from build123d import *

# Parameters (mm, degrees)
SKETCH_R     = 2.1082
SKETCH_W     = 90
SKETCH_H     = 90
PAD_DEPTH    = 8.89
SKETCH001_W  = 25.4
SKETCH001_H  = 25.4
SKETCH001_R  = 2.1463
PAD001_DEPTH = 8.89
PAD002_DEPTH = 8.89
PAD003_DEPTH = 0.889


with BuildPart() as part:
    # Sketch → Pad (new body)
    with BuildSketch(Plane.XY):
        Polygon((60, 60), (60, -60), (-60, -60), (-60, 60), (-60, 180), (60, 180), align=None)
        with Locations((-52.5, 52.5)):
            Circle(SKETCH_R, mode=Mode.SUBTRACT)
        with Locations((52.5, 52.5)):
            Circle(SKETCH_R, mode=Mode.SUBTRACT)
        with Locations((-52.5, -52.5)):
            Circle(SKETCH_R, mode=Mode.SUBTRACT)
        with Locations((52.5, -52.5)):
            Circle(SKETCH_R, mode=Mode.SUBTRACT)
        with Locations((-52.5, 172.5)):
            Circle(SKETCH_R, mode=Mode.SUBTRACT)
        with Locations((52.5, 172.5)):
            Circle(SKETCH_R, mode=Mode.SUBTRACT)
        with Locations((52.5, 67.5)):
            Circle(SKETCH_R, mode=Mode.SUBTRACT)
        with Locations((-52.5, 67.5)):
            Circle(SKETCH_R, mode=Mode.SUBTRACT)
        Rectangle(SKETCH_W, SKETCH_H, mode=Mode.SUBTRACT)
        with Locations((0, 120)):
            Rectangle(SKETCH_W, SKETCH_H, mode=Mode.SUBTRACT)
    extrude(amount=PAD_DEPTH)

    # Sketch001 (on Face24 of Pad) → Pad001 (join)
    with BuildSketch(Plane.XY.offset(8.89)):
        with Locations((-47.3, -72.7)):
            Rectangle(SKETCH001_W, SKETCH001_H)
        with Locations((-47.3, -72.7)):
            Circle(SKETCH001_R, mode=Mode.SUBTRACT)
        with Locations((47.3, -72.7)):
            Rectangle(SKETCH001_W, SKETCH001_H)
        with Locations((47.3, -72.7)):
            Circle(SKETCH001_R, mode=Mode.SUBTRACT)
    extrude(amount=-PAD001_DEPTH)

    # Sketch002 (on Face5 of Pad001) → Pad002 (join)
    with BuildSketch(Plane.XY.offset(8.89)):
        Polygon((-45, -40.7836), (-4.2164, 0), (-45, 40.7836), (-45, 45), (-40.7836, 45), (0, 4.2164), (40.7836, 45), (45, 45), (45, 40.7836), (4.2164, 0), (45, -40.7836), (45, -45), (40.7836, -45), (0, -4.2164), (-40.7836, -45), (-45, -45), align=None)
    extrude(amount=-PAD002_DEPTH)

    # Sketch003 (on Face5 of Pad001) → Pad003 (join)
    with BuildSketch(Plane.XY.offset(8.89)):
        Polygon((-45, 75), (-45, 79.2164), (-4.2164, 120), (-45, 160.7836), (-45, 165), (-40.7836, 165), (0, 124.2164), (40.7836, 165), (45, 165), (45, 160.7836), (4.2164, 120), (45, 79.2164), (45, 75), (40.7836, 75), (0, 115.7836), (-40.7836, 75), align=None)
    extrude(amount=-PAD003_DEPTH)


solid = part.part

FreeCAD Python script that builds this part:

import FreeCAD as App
import Part
import Sketcher

V = App.Vector
Q = App.Units.Quantity

doc = App.newDocument("Part")
params = doc.addObject("Spreadsheet::Sheet", "Params")
for row, (alias, value) in enumerate([
    ("sketch1_diameter", "0.166 in"),
    ("pad1_length", "0.35 in"),
    ("sketch2_width", "1 in"),
    ("sketch2_diameter", "0.169 in"),
    ("pad2_length", "0.35 in"),
    ("sketch3_width", "0.166 in"),
    ("pad3_length", "0.35 in"),
    ("sketch4_width", "0.166 in"),
    ("pad4_length", "0.035 in"),
], start=1):
    params.set(f"A{row}", alias)
    params.set(f"B{row}", "=" + value)
    params.setAlias(f"B{row}", alias)

body = doc.addObject("PartDesign::Body", "Body")

sketch1 = body.newObject("Sketcher::SketchObject", "Sketch")
sketch1.AttachmentSupport = (doc.getObject("XY_Plane"), [""])
sketch1.MapMode = "FlatFace"
sketch1.addGeometry([
    Part.LineSegment(V(60, -60, 0), V(60, 180, 0)),
    Part.LineSegment(V(60, 180, 0), V(-60, 180, 0)),
    Part.LineSegment(V(-60, 180, 0), V(-60, -60, 0)),
    Part.LineSegment(V(-60, -60, 0), V(60, -60, 0)),
    Part.Circle(V(52.5, -52.5, 0), V(0, 0, 1), 2.1),
    Part.Circle(V(52.5, 52.5, 0), V(0, 0, 1), 2.1),
    Part.LineSegment(V(-45, -45, 0), V(-45, 45, 0)),
    Part.LineSegment(V(-45, 45, 0), V(45, 45, 0)),
    Part.LineSegment(V(45, 45, 0), V(45, -45, 0)),
    Part.LineSegment(V(45, -45, 0), V(-45, -45, 0)),
    Part.Circle(V(-52.5, -52.5, 0), V(0, 0, 1), 2.1),
    Part.Circle(V(-52.5, 52.5, 0), V(0, 0, 1), 2.1),
    Part.Circle(V(52.5, 67.5, 0), V(0, 0, 1), 2.1),
    Part.Circle(V(52.5, 172.5, 0), V(0, 0, 1), 2.1),
    Part.Circle(V(-52.5, 67.5, 0), V(0, 0, 1), 2.1),
    Part.LineSegment(V(-45, 75, 0), V(-45, 165, 0)),
    Part.LineSegment(V(-45, 165, 0), V(45, 165, 0)),
    Part.LineSegment(V(45, 165, 0), V(45, 75, 0)),
    Part.LineSegment(V(45, 75, 0), V(-45, 75, 0)),
    Part.Circle(V(-52.5, 172.5, 0), V(0, 0, 1), 2.1),
], False)
sketch1.addConstraint([
    Sketcher.Constraint("Coincident", 0, 2, 1, 1),
    Sketcher.Constraint("Coincident", 1, 2, 2, 1),
    Sketcher.Constraint("Coincident", 2, 2, 3, 1),
    Sketcher.Constraint("Coincident", 3, 2, 0, 1),
    Sketcher.Constraint("Coincident", 6, 2, 7, 1),
    Sketcher.Constraint("Coincident", 7, 2, 8, 1),
    Sketcher.Constraint("Coincident", 8, 2, 9, 1),
    Sketcher.Constraint("Coincident", 9, 2, 6, 1),
    Sketcher.Constraint("Coincident", 15, 2, 16, 1),
    Sketcher.Constraint("Coincident", 16, 2, 17, 1),
    Sketcher.Constraint("Coincident", 17, 2, 18, 1),
    Sketcher.Constraint("Coincident", 18, 2, 15, 1),
    Sketcher.Constraint("Vertical", 0),
    Sketcher.Constraint("Horizontal", 1),
    Sketcher.Constraint("Vertical", 2),
    Sketcher.Constraint("Horizontal", 3),
    Sketcher.Constraint("Vertical", 6),
    Sketcher.Constraint("Horizontal", 7),
    Sketcher.Constraint("Vertical", 8),
    Sketcher.Constraint("Horizontal", 9),
    Sketcher.Constraint("Vertical", 15),
    Sketcher.Constraint("Horizontal", 16),
    Sketcher.Constraint("Vertical", 17),
    Sketcher.Constraint("Horizontal", 18),
    Sketcher.Constraint("Equal", 4, 5),
    Sketcher.Constraint("Equal", 5, 10),
    Sketcher.Constraint("Equal", 10, 11),
    Sketcher.Constraint("Equal", 11, 12),
    Sketcher.Constraint("Equal", 12, 13),
    Sketcher.Constraint("Equal", 13, 14),
    Sketcher.Constraint("Equal", 14, 19),
    Sketcher.Constraint("Symmetric", 5, 3, 10, 3, -1, 1),
    Sketcher.Constraint("Symmetric", 4, 3, 11, 3, -1, 1),
    Sketcher.Constraint("Symmetric", 6, 2, 8, 2, -1, 1),
    Sketcher.Constraint("Symmetric", 4, 3, 10, 3, -2),
    Sketcher.Constraint("Symmetric", 12, 3, 14, 3, -2),
    Sketcher.Constraint("Symmetric", 13, 3, 19, 3, -2),
    Sketcher.Constraint("Vertical", 5, 3, 12, 3),
    Sketcher.Constraint("Vertical", 12, 3, 13, 3),
    Sketcher.Constraint("Vertical", 9, 2, 15, 2),
    Sketcher.Constraint("Vertical", 8, 2, 16, 2),
    Sketcher.Constraint("Equal", 18, 6),
    Sketcher.Constraint("Equal", 8, 15),
    Sketcher.Constraint("Diameter", 4, Q("0.166 in")),
    Sketcher.Constraint("DistanceX", 1, 2, 1, 1, Q("120 mm")),
    Sketcher.Constraint("DistanceX", 7, 1, 7, 2, Q("90 mm")),
    Sketcher.Constraint("DistanceY", 0, 1, 0, 2, Q("240 mm")),
    Sketcher.Constraint("DistanceX", -1, 1, 4, 3, Q("52.5 mm")),
    Sketcher.Constraint("DistanceY", 4, 3, -1, 1, Q("52.5 mm")),
    Sketcher.Constraint("DistanceY", -1, 1, 12, 3, Q("67.5 mm")),
    Sketcher.Constraint("DistanceY", -1, 1, 13, 3, Q("172.5 mm")),
    Sketcher.Constraint("DistanceX", -1, 1, 0, 2, Q("60 mm")),
    Sketcher.Constraint("DistanceY", -1, 1, 0, 2, Q("180 mm")),
    Sketcher.Constraint("DistanceY", -1, 1, 15, 2, Q("165 mm")),
])
sketch1.setExpression("Constraints[43]", "Params.sketch1_diameter")
pad1 = body.newObject("PartDesign::Pad", "Pad")
pad1.Profile = sketch1
pad1.setExpression("Length", "Params.pad1_length")

sketch2 = body.newObject("Sketcher::SketchObject", "Sketch001")
sketch2.AttachmentSupport = (doc.getObject("XY_Plane"), [""])
sketch2.MapMode = "FlatFace"
sketch2.AttachmentOffset = App.Placement(V(0, 0, 0.35 * 25.4), App.Rotation())
sketch2.addGeometry([
    Part.LineSegment(V(-60, -60, 0), V(-60, -85.4, 0)),
    Part.LineSegment(V(-60, -85.4, 0), V(-34.6, -85.4, 0)),
    Part.LineSegment(V(-34.6, -85.4, 0), V(-34.6, -60, 0)),
    Part.LineSegment(V(-34.6, -60, 0), V(-60, -60, 0)),
    Part.Circle(V(-47.3, -72.7, 0), V(0, 0, 1), 2.1),
    Part.LineSegment(V(34.6, -60, 0), V(34.6, -85.4, 0)),
    Part.LineSegment(V(34.6, -85.4, 0), V(60, -85.4, 0)),
    Part.LineSegment(V(60, -85.4, 0), V(60, -60, 0)),
    Part.LineSegment(V(60, -60, 0), V(34.6, -60, 0)),
    Part.Circle(V(47.3, -72.7, 0), V(0, 0, 1), 2.1),
], False)
sketch2.addConstraint([
    Sketcher.Constraint("Coincident", 0, 2, 1, 1),
    Sketcher.Constraint("Coincident", 1, 2, 2, 1),
    Sketcher.Constraint("Coincident", 2, 2, 3, 1),
    Sketcher.Constraint("Coincident", 3, 2, 0, 1),
    Sketcher.Constraint("Coincident", 5, 2, 6, 1),
    Sketcher.Constraint("Coincident", 6, 2, 7, 1),
    Sketcher.Constraint("Coincident", 7, 2, 8, 1),
    Sketcher.Constraint("Coincident", 8, 2, 5, 1),
    Sketcher.Constraint("Vertical", 0),
    Sketcher.Constraint("Horizontal", 1),
    Sketcher.Constraint("Vertical", 2),
    Sketcher.Constraint("Horizontal", 3),
    Sketcher.Constraint("Vertical", 5),
    Sketcher.Constraint("Horizontal", 6),
    Sketcher.Constraint("Vertical", 7),
    Sketcher.Constraint("Horizontal", 8),
    Sketcher.Constraint("Equal", 4, 9),
    Sketcher.Constraint("Symmetric", 4, 3, 9, 3, -2),
    Sketcher.Constraint("Symmetric", 1, 2, 5, 2, -2),
    Sketcher.Constraint("Symmetric", 3, 2, 7, 2, -2),
    Sketcher.Constraint("Equal", 8, 0),
    Sketcher.Constraint("DistanceX", 1, 1, 1, 2, Q("1 in")),
    Sketcher.Constraint("Diameter", 4, Q("0.169 in")),
    Sketcher.Constraint("DistanceX", 0, 2, 4, 3, Q("0.5 in")),
    Sketcher.Constraint("DistanceY", 0, 2, 4, 3, Q("0.5 in")),
    Sketcher.Constraint("DistanceX", 4, 3, -1, 1, Q("47.3 mm")),
    Sketcher.Constraint("DistanceY", 4, 3, -1, 1, Q("72.7 mm")),
])
sketch2.setExpression("Constraints[21]", "Params.sketch2_width")
sketch2.setExpression("Constraints[22]", "Params.sketch2_diameter")
pad2 = body.newObject("PartDesign::Pad", "Pad001")
pad2.Profile = sketch2
pad2.setExpression("Length", "Params.pad2_length")
pad2.Reversed = True

sketch3 = body.newObject("Sketcher::SketchObject", "Sketch002")
sketch3.AttachmentSupport = (doc.getObject("XY_Plane"), [""])
sketch3.MapMode = "FlatFace"
sketch3.AttachmentOffset = App.Placement(V(0, 0, 0.35 * 25.4), App.Rotation())
sketch3.addGeometry([
    Part.LineSegment(V(-4.2, 0, 0), V(-45, -40.8, 0)),
    Part.LineSegment(V(-45, -40.8, 0), V(-45, -45, 0)),
    Part.LineSegment(V(-45, -45, 0), V(-40.8, -45, 0)),
    Part.LineSegment(V(-40.8, -45, 0), V(0, -4.2, 0)),
    Part.LineSegment(V(0, -4.2, 0), V(40.8, -45, 0)),
    Part.LineSegment(V(40.8, -45, 0), V(45, -45, 0)),
    Part.LineSegment(V(45, -45, 0), V(45, -40.8, 0)),
    Part.LineSegment(V(45, -40.8, 0), V(4.2, 0, 0)),
    Part.LineSegment(V(4.2, 0, 0), V(45, 40.8, 0)),
    Part.LineSegment(V(45, 40.8, 0), V(45, 45, 0)),
    Part.LineSegment(V(45, 45, 0), V(40.8, 45, 0)),
    Part.LineSegment(V(40.8, 45, 0), V(0, 4.2, 0)),
    Part.LineSegment(V(0, 4.2, 0), V(-40.8, 45, 0)),
    Part.LineSegment(V(-40.8, 45, 0), V(-45, 45, 0)),
    Part.LineSegment(V(-45, 45, 0), V(-45, 40.8, 0)),
    Part.LineSegment(V(-45, 40.8, 0), V(-4.2, 0, 0)),
], False)
sketch3.addConstraint([
    Sketcher.Constraint("Coincident", 0, 2, 1, 1),
    Sketcher.Constraint("Coincident", 1, 2, 2, 1),
    Sketcher.Constraint("Coincident", 2, 2, 3, 1),
    Sketcher.Constraint("Coincident", 3, 2, 4, 1),
    Sketcher.Constraint("Coincident", 4, 2, 5, 1),
    Sketcher.Constraint("Coincident", 5, 2, 6, 1),
    Sketcher.Constraint("Coincident", 6, 2, 7, 1),
    Sketcher.Constraint("Coincident", 7, 2, 8, 1),
    Sketcher.Constraint("Coincident", 8, 2, 9, 1),
    Sketcher.Constraint("Coincident", 9, 2, 10, 1),
    Sketcher.Constraint("Coincident", 10, 2, 11, 1),
    Sketcher.Constraint("Coincident", 11, 2, 12, 1),
    Sketcher.Constraint("Coincident", 12, 2, 13, 1),
    Sketcher.Constraint("Coincident", 13, 2, 14, 1),
    Sketcher.Constraint("Coincident", 14, 2, 15, 1),
    Sketcher.Constraint("Coincident", 15, 2, 0, 1),
    Sketcher.Constraint("Vertical", 1),
    Sketcher.Constraint("Horizontal", 2),
    Sketcher.Constraint("Horizontal", 5),
    Sketcher.Constraint("Vertical", 6),
    Sketcher.Constraint("Vertical", 9),
    Sketcher.Constraint("Horizontal", 10),
    Sketcher.Constraint("Horizontal", 13),
    Sketcher.Constraint("Vertical", 14),
    Sketcher.Constraint("Symmetric", 0, 2, 8, 2, -1, 1),
    Sketcher.Constraint("Symmetric", 2, 2, 10, 2, -1, 1),
    Sketcher.Constraint("Symmetric", 3, 2, 11, 2, -1, 1),
    Sketcher.Constraint("Symmetric", 4, 2, 12, 2, -1, 1),
    Sketcher.Constraint("Symmetric", 6, 2, 14, 2, -1, 1),
    Sketcher.Constraint("Symmetric", 7, 2, 15, 2, -1, 1),
    Sketcher.Constraint("Symmetric", 2, 2, 4, 2, -2),
    Sketcher.Constraint("Symmetric", 0, 2, 6, 2, -2),
    Sketcher.Constraint("PointOnObject", 3, 2, -2),
    Sketcher.Constraint("PointOnObject", 7, 2, -1),
    Sketcher.Constraint("Parallel", 0, 3),
    Sketcher.Constraint("Perpendicular", 3, 4),
    Sketcher.Constraint("Equal", 13, 1),
    Sketcher.Constraint("Equal", 0, 3),
    Sketcher.Constraint("DistanceX", 2, 1, 2, 2, Q("0.166 in")),
    Sketcher.Constraint("DistanceX", 0, 2, -1, 1, Q("45 mm")),
])
sketch3.setExpression("Constraints[38]", "Params.sketch3_width")
pad3 = body.newObject("PartDesign::Pad", "Pad002")
pad3.Profile = sketch3
pad3.setExpression("Length", "Params.pad3_length")
pad3.Reversed = True

sketch4 = body.newObject("Sketcher::SketchObject", "Sketch003")
sketch4.AttachmentSupport = (doc.getObject("XY_Plane"), [""])
sketch4.MapMode = "FlatFace"
sketch4.AttachmentOffset = App.Placement(V(0, 0, 0.35 * 25.4), App.Rotation())
sketch4.addGeometry([
    Part.LineSegment(V(-45, 79.2, 0), V(-45, 75, 0)),
    Part.LineSegment(V(-45, 75, 0), V(-40.8, 75, 0)),
    Part.LineSegment(V(-40.8, 75, 0), V(0, 115.8, 0)),
    Part.LineSegment(V(0, 115.8, 0), V(40.8, 75, 0)),
    Part.LineSegment(V(40.8, 75, 0), V(45, 75, 0)),
    Part.LineSegment(V(45, 75, 0), V(45, 79.2, 0)),
    Part.LineSegment(V(45, 79.2, 0), V(4.2, 120, 0)),
    Part.LineSegment(V(4.2, 120, 0), V(45, 160.8, 0)),
    Part.LineSegment(V(45, 160.8, 0), V(45, 165, 0)),
    Part.LineSegment(V(45, 165, 0), V(40.8, 165, 0)),
    Part.LineSegment(V(40.8, 165, 0), V(0, 124.2, 0)),
    Part.LineSegment(V(0, 124.2, 0), V(-40.8, 165, 0)),
    Part.LineSegment(V(-40.8, 165, 0), V(-45, 165, 0)),
    Part.LineSegment(V(-45, 165, 0), V(-45, 160.8, 0)),
    Part.LineSegment(V(-45, 160.8, 0), V(-4.2, 120, 0)),
    Part.LineSegment(V(-4.2, 120, 0), V(-45, 79.2, 0)),
], False)
sketch4.addConstraint([
    Sketcher.Constraint("Coincident", 0, 2, 1, 1),
    Sketcher.Constraint("Coincident", 1, 2, 2, 1),
    Sketcher.Constraint("Coincident", 2, 2, 3, 1),
    Sketcher.Constraint("Coincident", 3, 2, 4, 1),
    Sketcher.Constraint("Coincident", 4, 2, 5, 1),
    Sketcher.Constraint("Coincident", 5, 2, 6, 1),
    Sketcher.Constraint("Coincident", 6, 2, 7, 1),
    Sketcher.Constraint("Coincident", 7, 2, 8, 1),
    Sketcher.Constraint("Coincident", 8, 2, 9, 1),
    Sketcher.Constraint("Coincident", 9, 2, 10, 1),
    Sketcher.Constraint("Coincident", 10, 2, 11, 1),
    Sketcher.Constraint("Coincident", 11, 2, 12, 1),
    Sketcher.Constraint("Coincident", 12, 2, 13, 1),
    Sketcher.Constraint("Coincident", 13, 2, 14, 1),
    Sketcher.Constraint("Coincident", 14, 2, 15, 1),
    Sketcher.Constraint("Coincident", 15, 2, 0, 1),
    Sketcher.Constraint("Vertical", 0),
    Sketcher.Constraint("Horizontal", 1),
    Sketcher.Constraint("Horizontal", 4),
    Sketcher.Constraint("Vertical", 5),
    Sketcher.Constraint("Vertical", 8),
    Sketcher.Constraint("Horizontal", 9),
    Sketcher.Constraint("Horizontal", 12),
    Sketcher.Constraint("Vertical", 13),
    Sketcher.Constraint("Symmetric", 1, 2, 3, 2, -2),
    Sketcher.Constraint("Symmetric", 9, 2, 11, 2, -2),
    Sketcher.Constraint("Symmetric", 7, 2, 13, 2, -2),
    Sketcher.Constraint("Symmetric", 6, 2, 14, 2, -2),
    Sketcher.Constraint("Symmetric", 5, 2, 15, 2, -2),
    Sketcher.Constraint("PointOnObject", 2, 2, -2),
    Sketcher.Constraint("PointOnObject", 10, 2, -2),
    Sketcher.Constraint("Perpendicular", 2, 3),
    Sketcher.Constraint("Parallel", 3, 6),
    Sketcher.Constraint("Perpendicular", 6, 7),
    Sketcher.Constraint("Parallel", 7, 10),
    Sketcher.Constraint("Vertical", 5, 2, 7, 2),
    Sketcher.Constraint("Vertical", 3, 2, 9, 2),
    Sketcher.Constraint("Equal", 12, 0),
    Sketcher.Constraint("Equal", 5, 8),
    Sketcher.Constraint("Equal", 3, 6),
    Sketcher.Constraint("DistanceX", 1, 1, 1, 2, Q("0.166 in")),
    Sketcher.Constraint("DistanceX", 0, 2, -1, 1, Q("45 mm")),
    Sketcher.Constraint("DistanceY", -1, 1, 0, 2, Q("75 mm")),
])
sketch4.setExpression("Constraints[40]", "Params.sketch4_width")
pad4 = body.newObject("PartDesign::Pad", "Pad003")
pad4.Profile = sketch4
pad4.setExpression("Length", "Params.pad4_length")
pad4.Reversed = True

doc.recompute()
